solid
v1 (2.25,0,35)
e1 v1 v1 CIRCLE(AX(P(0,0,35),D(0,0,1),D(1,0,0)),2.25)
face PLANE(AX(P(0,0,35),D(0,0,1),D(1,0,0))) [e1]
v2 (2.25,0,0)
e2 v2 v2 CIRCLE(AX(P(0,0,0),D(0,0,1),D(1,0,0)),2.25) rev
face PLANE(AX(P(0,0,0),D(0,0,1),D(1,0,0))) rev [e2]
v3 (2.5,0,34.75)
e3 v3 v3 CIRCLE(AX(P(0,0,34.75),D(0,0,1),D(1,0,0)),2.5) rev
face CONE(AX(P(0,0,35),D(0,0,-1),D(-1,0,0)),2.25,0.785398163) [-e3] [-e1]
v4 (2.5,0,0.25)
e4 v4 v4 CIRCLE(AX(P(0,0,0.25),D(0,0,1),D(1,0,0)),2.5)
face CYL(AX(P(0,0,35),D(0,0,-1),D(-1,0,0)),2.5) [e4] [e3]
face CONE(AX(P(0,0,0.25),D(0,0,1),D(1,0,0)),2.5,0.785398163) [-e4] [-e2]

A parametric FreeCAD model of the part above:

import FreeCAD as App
import Part
import Sketcher

V = App.Vector
Q = App.Units.Quantity


def edges_at(feature, points):
    """Names of the edges that pass closest to the given points."""
    edges = feature.Shape.Edges
    near = lambda p: min(range(len(edges)), key=lambda i: edges[i].distToShape(Part.Vertex(*p))[0])
    return sorted({f"Edge{near(p) + 1}" for p in points})

doc = App.newDocument("Part")
params = doc.addObject("Spreadsheet::Sheet", "Params")
for row, (alias, value) in enumerate([
    ("sketch1_diameter", "5 mm"),
    ("pad1_length", "35 mm"),
    ("chamfer_size", "0.25 mm"),
], start=1):
    params.set(f"A{row}", alias)
    params.set(f"B{row}", "=" + value)
    params.setAlias(f"B{row}", alias)

body = doc.addObject("PartDesign::Body", "Body")

# Sketch on XY plane
sketch1 = body.newObject("Sketcher::SketchObject", "Sketch")
sketch1.AttachmentSupport = (doc.getObject("XY_Plane"), [""])
sketch1.MapMode = "FlatFace"
sketch1.addGeometry(Part.Circle(V(0, 0, 0), V(0, 0, 1), 2.5), False)
sketch1.addConstraint([
    Sketcher.Constraint("Coincident", 0, 3, -1, 1),
    Sketcher.Constraint("Diameter", 0, Q("5 mm")),
])
sketch1.setExpression("Constraints[1]", "Params.sketch1_diameter")
pad1 = body.newObject("PartDesign::Pad", "Pad")
pad1.Profile = sketch1
pad1.setExpression("Length", "Params.pad1_length")
doc.recompute()

chamfer = body.newObject("PartDesign::Chamfer", "Chamfer")
chamfer.Base = (pad1, edges_at(pad1, [(-2.5, 0, 0), (-2.5, 0, 35)]))
chamfer.setExpression("Size", "Params.chamfer_size")

doc.recompute()
